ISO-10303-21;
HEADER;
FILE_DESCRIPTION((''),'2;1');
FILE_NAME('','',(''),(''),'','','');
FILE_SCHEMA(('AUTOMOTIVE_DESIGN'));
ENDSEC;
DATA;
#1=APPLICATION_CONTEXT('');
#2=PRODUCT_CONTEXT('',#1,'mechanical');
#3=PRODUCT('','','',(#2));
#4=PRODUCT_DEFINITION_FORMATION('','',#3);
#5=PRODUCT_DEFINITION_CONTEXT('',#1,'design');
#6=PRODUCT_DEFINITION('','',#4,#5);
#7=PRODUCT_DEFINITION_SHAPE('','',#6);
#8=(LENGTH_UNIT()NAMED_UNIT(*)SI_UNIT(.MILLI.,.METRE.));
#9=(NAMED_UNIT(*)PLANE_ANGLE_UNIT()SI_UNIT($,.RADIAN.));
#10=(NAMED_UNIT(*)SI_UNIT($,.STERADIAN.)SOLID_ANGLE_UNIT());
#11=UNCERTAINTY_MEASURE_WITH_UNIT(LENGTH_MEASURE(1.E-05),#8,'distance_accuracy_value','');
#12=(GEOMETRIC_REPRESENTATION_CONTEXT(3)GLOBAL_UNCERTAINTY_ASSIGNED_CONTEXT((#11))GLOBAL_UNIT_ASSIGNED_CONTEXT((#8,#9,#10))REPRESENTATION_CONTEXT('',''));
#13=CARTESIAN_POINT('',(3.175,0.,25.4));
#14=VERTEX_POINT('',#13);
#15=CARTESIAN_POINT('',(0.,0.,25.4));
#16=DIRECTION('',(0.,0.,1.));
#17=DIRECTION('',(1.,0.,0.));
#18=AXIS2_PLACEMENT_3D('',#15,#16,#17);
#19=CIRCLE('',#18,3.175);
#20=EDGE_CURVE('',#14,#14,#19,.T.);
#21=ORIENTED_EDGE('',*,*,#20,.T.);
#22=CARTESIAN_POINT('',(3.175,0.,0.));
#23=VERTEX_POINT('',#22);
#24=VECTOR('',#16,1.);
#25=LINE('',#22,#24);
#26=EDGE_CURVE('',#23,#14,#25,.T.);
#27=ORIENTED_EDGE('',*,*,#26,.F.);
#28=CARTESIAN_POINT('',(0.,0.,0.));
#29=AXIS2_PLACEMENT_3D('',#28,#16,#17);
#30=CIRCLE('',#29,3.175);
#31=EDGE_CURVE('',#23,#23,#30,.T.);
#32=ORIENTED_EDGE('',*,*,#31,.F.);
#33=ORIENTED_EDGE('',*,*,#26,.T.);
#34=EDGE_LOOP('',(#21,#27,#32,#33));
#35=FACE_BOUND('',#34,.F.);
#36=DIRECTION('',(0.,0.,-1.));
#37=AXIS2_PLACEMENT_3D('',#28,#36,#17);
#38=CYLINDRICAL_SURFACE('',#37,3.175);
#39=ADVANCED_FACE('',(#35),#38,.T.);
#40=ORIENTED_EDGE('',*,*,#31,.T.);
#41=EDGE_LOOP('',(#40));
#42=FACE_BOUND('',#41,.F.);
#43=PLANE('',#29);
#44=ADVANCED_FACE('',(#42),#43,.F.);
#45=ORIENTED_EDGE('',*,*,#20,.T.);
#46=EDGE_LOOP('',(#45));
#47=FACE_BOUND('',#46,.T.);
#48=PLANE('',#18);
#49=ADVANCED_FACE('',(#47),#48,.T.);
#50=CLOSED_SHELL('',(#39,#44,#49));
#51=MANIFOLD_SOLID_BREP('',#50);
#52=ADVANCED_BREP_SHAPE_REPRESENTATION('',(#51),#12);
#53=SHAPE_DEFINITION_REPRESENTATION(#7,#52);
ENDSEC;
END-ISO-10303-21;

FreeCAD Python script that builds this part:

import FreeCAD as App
import Part
import Sketcher
from FreeCAD import Vector
Q = App.Units.Quantity

doc = App.newDocument("Part")
params = doc.addObject("Spreadsheet::Sheet", "Params")
for row, (alias, value) in enumerate([
    ("sketch1_diameter", "0.25 in"),
    ("pad1_length", "1 in"),
], start=1):
    params.set(f"A{row}", alias)
    params.set(f"B{row}", "=" + value)
    params.setAlias(f"B{row}", alias)

body = doc.addObject("PartDesign::Body", "Body")

sketch1 = body.newObject("Sketcher::SketchObject", "Sketch")
sketch1.AttachmentSupport = (doc.getObject("XY_Plane"), [""])
sketch1.MapMode = "FlatFace"
sketch1.addGeometry(Part.Circle(Vector(0, 0, 0), Vector(0, 0, 1), 3.2), False)
sketch1.addConstraint(Sketcher.Constraint("Coincident", 0, 3, -1, 1))
sketch1.addConstraint(Sketcher.Constraint("Diameter", 0, Q("0.25 in")))
sketch1.setExpression("Constraints[1]", "Params.sketch1_diameter")
pad1 = body.newObject("PartDesign::Pad", "Pad")
pad1.Profile = sketch1
pad1.setExpression("Length", "Params.pad1_length")

doc.recompute()
